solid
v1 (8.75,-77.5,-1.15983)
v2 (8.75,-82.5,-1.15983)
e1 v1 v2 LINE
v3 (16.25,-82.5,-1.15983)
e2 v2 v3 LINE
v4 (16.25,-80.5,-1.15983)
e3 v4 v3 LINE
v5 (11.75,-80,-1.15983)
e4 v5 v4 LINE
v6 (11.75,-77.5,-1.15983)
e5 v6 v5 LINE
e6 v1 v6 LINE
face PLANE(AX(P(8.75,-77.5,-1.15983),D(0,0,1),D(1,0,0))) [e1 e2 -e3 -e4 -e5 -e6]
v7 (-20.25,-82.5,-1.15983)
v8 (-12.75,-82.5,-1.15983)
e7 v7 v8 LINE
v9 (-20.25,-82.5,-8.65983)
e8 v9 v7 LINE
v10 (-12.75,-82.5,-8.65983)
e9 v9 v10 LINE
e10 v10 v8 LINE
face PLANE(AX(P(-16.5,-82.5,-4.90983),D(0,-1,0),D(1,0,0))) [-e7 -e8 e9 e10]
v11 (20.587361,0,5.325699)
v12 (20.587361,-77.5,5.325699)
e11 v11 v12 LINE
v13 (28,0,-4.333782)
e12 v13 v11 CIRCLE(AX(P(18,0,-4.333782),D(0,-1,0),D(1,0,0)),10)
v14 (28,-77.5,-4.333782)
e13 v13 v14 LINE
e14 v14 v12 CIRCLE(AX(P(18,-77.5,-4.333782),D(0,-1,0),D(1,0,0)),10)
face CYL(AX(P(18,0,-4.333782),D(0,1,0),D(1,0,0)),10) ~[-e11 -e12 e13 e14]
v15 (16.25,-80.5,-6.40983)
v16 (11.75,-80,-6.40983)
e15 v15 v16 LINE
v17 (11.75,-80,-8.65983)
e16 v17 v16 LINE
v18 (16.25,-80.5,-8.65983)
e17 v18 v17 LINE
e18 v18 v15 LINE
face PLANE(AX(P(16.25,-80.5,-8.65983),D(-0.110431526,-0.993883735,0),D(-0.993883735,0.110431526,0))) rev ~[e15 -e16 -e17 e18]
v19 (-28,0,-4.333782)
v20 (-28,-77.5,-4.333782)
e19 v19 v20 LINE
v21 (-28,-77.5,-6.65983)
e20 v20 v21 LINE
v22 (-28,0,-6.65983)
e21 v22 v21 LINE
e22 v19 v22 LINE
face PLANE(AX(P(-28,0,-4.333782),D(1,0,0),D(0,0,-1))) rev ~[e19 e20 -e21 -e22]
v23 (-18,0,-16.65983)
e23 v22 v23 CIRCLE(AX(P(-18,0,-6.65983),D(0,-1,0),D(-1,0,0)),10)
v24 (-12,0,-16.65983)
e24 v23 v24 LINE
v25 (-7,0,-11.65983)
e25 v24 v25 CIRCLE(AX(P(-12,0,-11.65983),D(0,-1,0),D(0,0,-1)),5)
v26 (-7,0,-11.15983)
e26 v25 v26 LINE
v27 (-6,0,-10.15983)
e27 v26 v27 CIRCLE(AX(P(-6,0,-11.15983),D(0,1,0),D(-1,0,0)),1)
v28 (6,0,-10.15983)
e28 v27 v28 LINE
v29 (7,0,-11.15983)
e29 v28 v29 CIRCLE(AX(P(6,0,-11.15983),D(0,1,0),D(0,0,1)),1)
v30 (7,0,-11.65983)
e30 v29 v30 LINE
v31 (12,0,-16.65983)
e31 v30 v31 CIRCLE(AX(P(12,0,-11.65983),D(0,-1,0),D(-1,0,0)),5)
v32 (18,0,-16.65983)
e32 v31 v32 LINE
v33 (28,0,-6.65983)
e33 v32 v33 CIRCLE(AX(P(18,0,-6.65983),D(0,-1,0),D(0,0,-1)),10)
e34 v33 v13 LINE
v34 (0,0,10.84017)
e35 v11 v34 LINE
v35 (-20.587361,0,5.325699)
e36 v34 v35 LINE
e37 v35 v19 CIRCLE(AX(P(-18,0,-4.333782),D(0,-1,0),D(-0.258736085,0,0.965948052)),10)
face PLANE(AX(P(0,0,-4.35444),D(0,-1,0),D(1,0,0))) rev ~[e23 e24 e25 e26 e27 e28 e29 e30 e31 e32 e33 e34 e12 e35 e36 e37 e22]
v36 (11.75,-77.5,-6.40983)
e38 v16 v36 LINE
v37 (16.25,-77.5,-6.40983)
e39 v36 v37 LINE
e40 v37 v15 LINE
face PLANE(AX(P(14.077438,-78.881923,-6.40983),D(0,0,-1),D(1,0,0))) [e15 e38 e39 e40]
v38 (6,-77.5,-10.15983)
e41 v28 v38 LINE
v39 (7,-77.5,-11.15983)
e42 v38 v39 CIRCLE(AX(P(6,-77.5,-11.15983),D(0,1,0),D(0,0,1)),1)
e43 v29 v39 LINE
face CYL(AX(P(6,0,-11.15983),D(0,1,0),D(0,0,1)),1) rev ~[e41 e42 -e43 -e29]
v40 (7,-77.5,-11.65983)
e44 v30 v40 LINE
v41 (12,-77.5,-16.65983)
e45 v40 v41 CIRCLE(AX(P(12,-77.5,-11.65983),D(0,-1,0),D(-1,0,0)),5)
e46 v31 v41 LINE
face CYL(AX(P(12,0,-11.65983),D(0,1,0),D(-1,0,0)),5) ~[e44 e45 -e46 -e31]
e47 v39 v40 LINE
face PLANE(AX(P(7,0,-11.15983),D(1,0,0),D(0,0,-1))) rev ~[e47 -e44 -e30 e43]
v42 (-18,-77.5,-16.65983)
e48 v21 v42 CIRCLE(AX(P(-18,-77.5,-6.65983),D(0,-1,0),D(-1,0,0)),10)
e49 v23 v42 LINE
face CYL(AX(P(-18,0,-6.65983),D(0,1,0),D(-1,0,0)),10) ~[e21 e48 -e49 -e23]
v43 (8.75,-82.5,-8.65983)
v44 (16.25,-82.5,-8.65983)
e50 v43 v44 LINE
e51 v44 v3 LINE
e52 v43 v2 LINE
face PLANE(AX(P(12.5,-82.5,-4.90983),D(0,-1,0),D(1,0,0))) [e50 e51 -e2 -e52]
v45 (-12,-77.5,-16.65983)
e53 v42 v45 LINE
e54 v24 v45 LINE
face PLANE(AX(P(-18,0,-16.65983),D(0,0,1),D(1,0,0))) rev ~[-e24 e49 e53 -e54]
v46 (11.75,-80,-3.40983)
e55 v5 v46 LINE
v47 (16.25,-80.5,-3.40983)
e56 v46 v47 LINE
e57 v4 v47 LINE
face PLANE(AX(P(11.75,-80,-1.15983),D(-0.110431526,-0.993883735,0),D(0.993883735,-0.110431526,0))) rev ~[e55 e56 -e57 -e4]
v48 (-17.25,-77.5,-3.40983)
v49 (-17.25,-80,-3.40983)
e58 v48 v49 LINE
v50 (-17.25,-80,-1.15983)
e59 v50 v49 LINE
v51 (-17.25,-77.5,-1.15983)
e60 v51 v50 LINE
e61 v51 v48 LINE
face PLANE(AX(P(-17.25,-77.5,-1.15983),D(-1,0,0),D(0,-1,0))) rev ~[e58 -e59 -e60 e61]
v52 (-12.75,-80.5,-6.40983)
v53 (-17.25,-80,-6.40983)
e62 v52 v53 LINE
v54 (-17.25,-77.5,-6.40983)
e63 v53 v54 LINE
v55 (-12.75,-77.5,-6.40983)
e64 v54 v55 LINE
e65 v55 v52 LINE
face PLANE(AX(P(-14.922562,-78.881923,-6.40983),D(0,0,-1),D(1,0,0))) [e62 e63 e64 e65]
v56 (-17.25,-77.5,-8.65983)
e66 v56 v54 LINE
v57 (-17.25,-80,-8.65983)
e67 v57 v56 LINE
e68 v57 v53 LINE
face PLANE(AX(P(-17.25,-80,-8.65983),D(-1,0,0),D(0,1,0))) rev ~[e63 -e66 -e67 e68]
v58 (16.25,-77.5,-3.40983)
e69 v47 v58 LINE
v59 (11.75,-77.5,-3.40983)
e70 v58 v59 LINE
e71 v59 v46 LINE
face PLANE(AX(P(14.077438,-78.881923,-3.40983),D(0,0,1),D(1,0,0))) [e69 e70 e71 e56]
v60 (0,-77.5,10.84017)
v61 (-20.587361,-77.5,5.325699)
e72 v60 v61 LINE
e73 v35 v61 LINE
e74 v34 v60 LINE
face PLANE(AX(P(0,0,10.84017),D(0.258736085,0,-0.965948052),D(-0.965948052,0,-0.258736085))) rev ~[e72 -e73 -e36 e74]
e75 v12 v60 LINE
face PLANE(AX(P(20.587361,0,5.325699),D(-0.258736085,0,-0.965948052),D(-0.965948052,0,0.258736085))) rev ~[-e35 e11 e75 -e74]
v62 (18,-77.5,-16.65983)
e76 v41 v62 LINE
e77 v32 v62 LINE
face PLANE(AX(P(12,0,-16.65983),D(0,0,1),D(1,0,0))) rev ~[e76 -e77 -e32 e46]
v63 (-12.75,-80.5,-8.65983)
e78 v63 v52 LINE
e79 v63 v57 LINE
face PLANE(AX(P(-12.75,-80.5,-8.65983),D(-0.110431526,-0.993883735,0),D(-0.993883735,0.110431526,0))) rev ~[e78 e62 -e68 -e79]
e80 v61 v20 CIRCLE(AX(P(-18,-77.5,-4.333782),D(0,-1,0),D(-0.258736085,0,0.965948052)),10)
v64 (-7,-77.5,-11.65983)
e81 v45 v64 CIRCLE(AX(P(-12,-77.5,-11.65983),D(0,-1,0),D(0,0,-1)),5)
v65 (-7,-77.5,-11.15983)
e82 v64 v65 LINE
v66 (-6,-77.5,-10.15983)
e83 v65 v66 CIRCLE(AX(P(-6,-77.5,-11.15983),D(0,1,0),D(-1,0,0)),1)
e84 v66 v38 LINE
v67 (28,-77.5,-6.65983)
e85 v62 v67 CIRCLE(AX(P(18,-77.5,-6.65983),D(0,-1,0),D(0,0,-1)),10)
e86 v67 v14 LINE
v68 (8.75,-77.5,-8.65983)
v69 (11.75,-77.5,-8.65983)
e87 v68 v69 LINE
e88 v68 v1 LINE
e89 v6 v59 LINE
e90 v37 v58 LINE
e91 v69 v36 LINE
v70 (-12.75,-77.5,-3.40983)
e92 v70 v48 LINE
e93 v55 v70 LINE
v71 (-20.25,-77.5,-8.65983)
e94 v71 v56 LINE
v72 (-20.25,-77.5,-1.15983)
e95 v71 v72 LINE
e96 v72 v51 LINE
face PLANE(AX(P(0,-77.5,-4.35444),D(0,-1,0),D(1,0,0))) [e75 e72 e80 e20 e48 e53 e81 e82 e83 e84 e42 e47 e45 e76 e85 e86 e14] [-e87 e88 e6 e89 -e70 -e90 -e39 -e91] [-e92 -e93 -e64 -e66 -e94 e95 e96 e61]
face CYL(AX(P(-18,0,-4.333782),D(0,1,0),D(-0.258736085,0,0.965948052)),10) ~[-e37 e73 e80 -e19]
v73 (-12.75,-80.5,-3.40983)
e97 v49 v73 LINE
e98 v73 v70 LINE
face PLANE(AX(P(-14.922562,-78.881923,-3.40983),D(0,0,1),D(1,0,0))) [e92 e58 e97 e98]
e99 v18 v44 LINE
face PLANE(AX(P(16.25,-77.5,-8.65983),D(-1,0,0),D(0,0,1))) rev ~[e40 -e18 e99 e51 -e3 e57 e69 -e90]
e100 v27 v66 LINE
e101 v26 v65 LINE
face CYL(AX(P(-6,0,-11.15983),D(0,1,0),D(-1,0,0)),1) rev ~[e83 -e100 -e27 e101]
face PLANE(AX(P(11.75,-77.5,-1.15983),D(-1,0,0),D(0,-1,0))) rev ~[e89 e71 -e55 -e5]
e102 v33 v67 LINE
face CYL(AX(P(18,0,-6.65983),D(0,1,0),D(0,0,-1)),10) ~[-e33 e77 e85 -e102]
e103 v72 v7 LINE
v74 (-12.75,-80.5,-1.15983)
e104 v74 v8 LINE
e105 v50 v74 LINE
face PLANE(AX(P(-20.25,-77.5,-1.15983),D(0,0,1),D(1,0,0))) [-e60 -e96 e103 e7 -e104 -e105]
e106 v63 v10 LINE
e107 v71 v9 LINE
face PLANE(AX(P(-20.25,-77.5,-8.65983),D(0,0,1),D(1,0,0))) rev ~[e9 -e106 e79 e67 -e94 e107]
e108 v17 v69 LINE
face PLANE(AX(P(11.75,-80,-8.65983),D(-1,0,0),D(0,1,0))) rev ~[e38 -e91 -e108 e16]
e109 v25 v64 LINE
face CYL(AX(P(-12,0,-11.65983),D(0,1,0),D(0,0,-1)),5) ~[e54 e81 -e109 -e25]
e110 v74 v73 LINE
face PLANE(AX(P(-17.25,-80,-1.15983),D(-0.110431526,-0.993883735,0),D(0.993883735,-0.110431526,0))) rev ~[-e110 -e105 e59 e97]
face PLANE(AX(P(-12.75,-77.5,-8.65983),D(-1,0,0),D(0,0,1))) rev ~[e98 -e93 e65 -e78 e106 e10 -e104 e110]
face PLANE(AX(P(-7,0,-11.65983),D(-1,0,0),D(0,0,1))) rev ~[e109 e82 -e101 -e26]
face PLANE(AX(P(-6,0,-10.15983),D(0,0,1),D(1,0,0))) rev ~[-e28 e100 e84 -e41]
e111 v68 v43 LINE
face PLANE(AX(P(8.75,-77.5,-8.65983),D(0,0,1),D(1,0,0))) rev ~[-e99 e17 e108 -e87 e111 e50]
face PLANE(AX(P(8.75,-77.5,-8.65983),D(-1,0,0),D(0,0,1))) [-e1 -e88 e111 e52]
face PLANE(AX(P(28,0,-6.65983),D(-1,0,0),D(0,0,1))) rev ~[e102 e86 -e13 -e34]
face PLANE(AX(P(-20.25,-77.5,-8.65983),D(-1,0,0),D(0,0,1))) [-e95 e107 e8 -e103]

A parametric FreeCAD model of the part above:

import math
import FreeCAD as App
import Part
import Sketcher
Q = App.Units.Quantity


def add_polygon(sketch, points):
    """Adds a closed chain of lines whose ends are joined by coincident constraints."""
    first, n = sketch.GeometryCount, len(points)
    for a, b in zip(points, points[1:] + points[:1]):
        sketch.addGeometry(Part.LineSegment(App.Vector(*a, 0), App.Vector(*b, 0)), False)
    for i in range(n):
        sketch.addConstraint(Sketcher.Constraint("Coincident", first + i, 2, first + (i + 1) % n, 1))

doc = App.newDocument("Part")
body = doc.addObject("PartDesign::Body", "Body")

# Sketch on XZ plane
sketch1 = body.newObject("Sketcher::SketchObject", "Sketch")
sketch1.AttachmentSupport = (doc.getObject("XZ_Plane"), [""])
sketch1.MapMode = "FlatFace"
sketch1.addGeometry([
    Part.ArcOfCircle(Part.Circle(App.Vector(-18, -6.7, 0), App.Vector(0, 0, 1), 10), math.radians(180), math.radians(270)),  # 0
    Part.LineSegment(App.Vector(-18, -16.7, 0), App.Vector(-12, -16.7, 0)),  # 1
    Part.ArcOfCircle(Part.Circle(App.Vector(-12, -11.7, 0), App.Vector(0, 0, 1), 5), math.radians(-90), math.radians(0)),  # 2
    Part.LineSegment(App.Vector(-7, -11.7, 0), App.Vector(-7, -11.2, 0)),  # 3
    Part.ArcOfCircle(Part.Circle(App.Vector(-6, -11.2, 0), App.Vector(0, 0, 1), 1), math.radians(90), math.radians(180)),  # 4
    Part.LineSegment(App.Vector(-6, -10.2, 0), App.Vector(6, -10.2, 0)),  # 5
    Part.ArcOfCircle(Part.Circle(App.Vector(6, -11.2, 0), App.Vector(0, 0, 1), 1), math.radians(0), math.radians(90)),  # 6
    Part.LineSegment(App.Vector(7, -11.2, 0), App.Vector(7, -11.7, 0)),  # 7
    Part.ArcOfCircle(Part.Circle(App.Vector(12, -11.7, 0), App.Vector(0, 0, 1), 5), math.radians(-180), math.radians(-90)),  # 8
    Part.LineSegment(App.Vector(12, -16.7, 0), App.Vector(18, -16.7, 0)),  # 9
    Part.ArcOfCircle(Part.Circle(App.Vector(18, -6.7, 0), App.Vector(0, 0, 1), 10), math.radians(-90), math.radians(0)),  # 10
    Part.LineSegment(App.Vector(28, -6.7, 0), App.Vector(28, -4.3, 0)),  # 11
    Part.ArcOfCircle(Part.Circle(App.Vector(18, -4.3, 0), App.Vector(0, 0, 1), 10), math.radians(0), math.radians(75)),  # 12
    Part.LineSegment(App.Vector(20.6, 5.3, 0), App.Vector(0, 10.8, 0)),  # 13
    Part.LineSegment(App.Vector(0, 10.8, 0), App.Vector(-20.6, 5.3, 0)),  # 14
    Part.ArcOfCircle(Part.Circle(App.Vector(-18, -4.3, 0), App.Vector(0, 0, 1), 10), math.radians(105), math.radians(180)),  # 15
    Part.LineSegment(App.Vector(-28, -4.3, 0), App.Vector(-28, -6.7, 0)),  # 16
], False)
sketch1.addConstraint([
    Sketcher.Constraint("Tangent", 0, 2, 1, 1),
    Sketcher.Constraint("Tangent", 1, 2, 2, 1),
    Sketcher.Constraint("Tangent", 2, 2, 3, 1),
    Sketcher.Constraint("Tangent", 3, 2, 4, 2),
    Sketcher.Constraint("Tangent", 4, 1, 5, 1),
    Sketcher.Constraint("Tangent", 5, 2, 6, 2),
    Sketcher.Constraint("Tangent", 6, 1, 7, 1),
    Sketcher.Constraint("Tangent", 7, 2, 8, 1),
    Sketcher.Constraint("Tangent", 8, 2, 9, 1),
    Sketcher.Constraint("Tangent", 9, 2, 10, 1),
    Sketcher.Constraint("Tangent", 10, 2, 11, 1),
    Sketcher.Constraint("Tangent", 11, 2, 12, 1),
    Sketcher.Constraint("Tangent", 12, 2, 13, 1),
    Sketcher.Constraint("Coincident", 13, 2, 14, 1),
    Sketcher.Constraint("Tangent", 14, 2, 15, 1),
    Sketcher.Constraint("Tangent", 15, 2, 16, 1),
    Sketcher.Constraint("Tangent", 16, 2, 0, 1),
    Sketcher.Constraint("Horizontal", 1),
    Sketcher.Constraint("Vertical", 3),
    Sketcher.Constraint("Horizontal", 5),
    Sketcher.Constraint("Vertical", 7),
    Sketcher.Constraint("Horizontal", 9),
    Sketcher.Constraint("Vertical", 11),
    Sketcher.Constraint("Vertical", 16),
    Sketcher.Constraint("Equal", 4, 6),
    Sketcher.Constraint("Equal", 2, 8),
    Sketcher.Constraint("Equal", 0, 10),
    Sketcher.Constraint("Equal", 10, 12),
    Sketcher.Constraint("Equal", 12, 15),
    Sketcher.Constraint("Symmetric", 2, 3, 8, 3, -2),
    Sketcher.Constraint("Symmetric", 12, 3, 15, 3, -2),
    Sketcher.Constraint("PointOnObject", 13, 2, -2),
    Sketcher.Constraint("Radius", 0, Q("10 mm")),
    Sketcher.Constraint("Radius", 2, Q("5 mm")),
    Sketcher.Constraint("Radius", 4, Q("1 mm")),
    Sketcher.Constraint("DistanceX", 1, 1, 1, 2, Q("6 mm")),
    Sketcher.Constraint("DistanceX", 5, 1, 5, 2, Q("12 mm")),
    Sketcher.Constraint("DistanceY", 3, 1, 3, 2, Q("0.5 mm")),
    Sketcher.Constraint("DistanceY", 4, 1, 13, 2, Q("21 mm")),
    Sketcher.Constraint("DistanceY", -1, 1, 12, 2, Q("5.325699 mm")),
    Sketcher.Constraint("DistanceY", 11, 1, 11, 2, Q("2.326048 mm")),
])
pad1 = body.newObject("PartDesign::Pad", "Pad")
pad1.Profile = sketch1
pad1.Length = 77.5

# Sketch on XZ plane
sketch2 = body.newObject("Sketcher::SketchObject", "Sketch001")
sketch2.AttachmentSupport = (doc.getObject("XZ_Plane"), [""])
sketch2.MapMode = "FlatFace"
sketch2.AttachmentOffset = App.Placement(App.Vector(0, 0, 77.5), App.Rotation())
add_polygon(sketch2, [(-20, -1), (-20, -9), (-13, -9), (-13, -1)])  # lines 0-3
add_polygon(sketch2, [(9, -1), (9, -9), (16, -9), (16, -1)])  # lines 4-7
sketch2.addConstraint([
    Sketcher.Constraint("Vertical", 0),
    Sketcher.Constraint("Horizontal", 1),
    Sketcher.Constraint("Vertical", 2),
    Sketcher.Constraint("Horizontal", 3),
    Sketcher.Constraint("Vertical", 4),
    Sketcher.Constraint("Horizontal", 5),
    Sketcher.Constraint("Vertical", 6),
    Sketcher.Constraint("Horizontal", 7),
    Sketcher.Constraint("Horizontal", 1, 2, 4, 2),
    Sketcher.Constraint("Horizontal", 3, 2, 6, 2),
    Sketcher.Constraint("Equal", 3, 5),
    Sketcher.Constraint("Equal", 7, 0),
    Sketcher.Constraint("DistanceX", 1, 1, 1, 2, Q("7.5 mm")),
    Sketcher.Constraint("DistanceX", 0, 2, 4, 2, Q("29 mm")),
    Sketcher.Constraint("DistanceX", 0, 2, -1, 1, Q("20.25 mm")),
    Sketcher.Constraint("DistanceY", 0, 2, -1, 1, Q("8.65983 mm")),
])
pad2 = body.newObject("PartDesign::Pad", "Pad001")
pad2.Profile = sketch2
pad2.Length = 5

# Sketch on XY plane
sketch3 = body.newObject("Sketcher::SketchObject", "Sketch002")
sketch3.AttachmentSupport = (doc.getObject("XY_Plane"), [""])
sketch3.MapMode = "FlatFace"
sketch3.AttachmentOffset = App.Placement(App.Vector(0, 0, -1.15983), App.Rotation())
add_polygon(sketch3, [(-12.8, -77.5), (-17.2, -77.5), (-17.2, -80), (-12.8, -80.5)])  # lines 0-3
sketch3.addConstraint([
    Sketcher.Constraint("Horizontal", 0),
    Sketcher.Constraint("Vertical", 1),
    Sketcher.Constraint("Vertical", 3),
    Sketcher.Constraint("DistanceY", 3, 1, 3, 2, Q("3 mm")),
    Sketcher.Constraint("DistanceX", 0, 2, 0, 1, Q("4.5 mm")),
    Sketcher.Constraint("DistanceY", 1, 2, 1, 1, Q("2.5 mm")),
    Sketcher.Constraint("DistanceY", 1, 2, -1, 1, Q("80 mm")),
    Sketcher.Constraint("DistanceX", 0, 2, -1, 1, Q("17.25 mm")),
])
pocket1 = body.newObject("PartDesign::Pocket", "Pocket")
pocket1.Profile = sketch3
pocket1.Length = 2.25

# Sketch on XY plane
sketch4 = body.newObject("Sketcher::SketchObject", "Sketch003")
sketch4.AttachmentSupport = (doc.getObject("XY_Plane"), [""])
sketch4.MapMode = "FlatFace"
sketch4.AttachmentOffset = App.Placement(App.Vector(0, 0, -1.15983), App.Rotation())
add_polygon(sketch4, [(16.2, -77.5), (11.8, -77.5), (11.8, -80), (16.2, -80.5)])  # lines 0-3
sketch4.addConstraint([
    Sketcher.Constraint("Horizontal", 0),
    Sketcher.Constraint("Vertical", 1),
    Sketcher.Constraint("Vertical", 3),
    Sketcher.Constraint("DistanceY", 3, 1, 3, 2, Q("3 mm")),
    Sketcher.Constraint("DistanceX", 0, 2, 0, 1, Q("4.5 mm")),
    Sketcher.Constraint("DistanceY", 1, 2, 1, 1, Q("2.5 mm")),
    Sketcher.Constraint("DistanceY", 1, 2, -1, 1, Q("80 mm")),
    Sketcher.Constraint("DistanceX", -1, 1, 0, 2, Q("11.75 mm")),
])
pocket2 = body.newObject("PartDesign::Pocket", "Pocket001")
pocket2.Profile = sketch4
pocket2.Length = 2.25

# Sketch on XY plane
sketch5 = body.newObject("Sketcher::SketchObject", "Sketch004")
sketch5.AttachmentSupport = (doc.getObject("XY_Plane"), [""])
sketch5.MapMode = "FlatFace"
sketch5.AttachmentOffset = App.Placement(App.Vector(0, 0, -8.65983), App.Rotation())
add_polygon(sketch5, [(11.8, -80), (11.8, -77.5), (16.2, -77.5), (16.2, -80.5)])  # lines 0-3
sketch5.addConstraint([
    Sketcher.Constraint("Vertical", 0),
    Sketcher.Constraint("Horizontal", 1),
    Sketcher.Constraint("Vertical", 2),
    Sketcher.Constraint("DistanceY", 2, 2, 2, 1, Q("3 mm")),
    Sketcher.Constraint("DistanceX", 1, 1, 1, 2, Q("4.5 mm")),
    Sketcher.Constraint("DistanceY", 0, 1, 0, 2, Q("2.5 mm")),
    Sketcher.Constraint("DistanceY", 3, 2, -1, 1, Q("80 mm")),
    Sketcher.Constraint("DistanceX", -1, 1, 0, 2, Q("11.75 mm")),
])
pocket3 = body.newObject("PartDesign::Pocket", "Pocket002")
pocket3.Profile = sketch5
pocket3.Length = 2.25
pocket3.Reversed = True

# Sketch on XY plane
sketch6 = body.newObject("Sketcher::SketchObject", "Sketch005")
sketch6.AttachmentSupport = (doc.getObject("XY_Plane"), [""])
sketch6.MapMode = "FlatFace"
sketch6.AttachmentOffset = App.Placement(App.Vector(0, 0, -8.65983), App.Rotation())
add_polygon(sketch6, [(-17.2, -80), (-17.2, -77.5), (-12.8, -77.5), (-12.8, -80.5)])  # lines 0-3
sketch6.addConstraint([
    Sketcher.Constraint("Vertical", 0),
    Sketcher.Constraint("Horizontal", 1),
    Sketcher.Constraint("Vertical", 2),
    Sketcher.Constraint("DistanceY", 2, 2, 2, 1, Q("3 mm")),
    Sketcher.Constraint("DistanceX", 1, 1, 1, 2, Q("4.5 mm")),
    Sketcher.Constraint("DistanceY", 0, 1, 0, 2, Q("2.5 mm")),
    Sketcher.Constraint("DistanceY", 3, 2, -1, 1, Q("80 mm")),
    Sketcher.Constraint("DistanceX", 0, 2, -1, 1, Q("17.25 mm")),
])
pocket4 = body.newObject("PartDesign::Pocket", "Pocket003")
pocket4.Profile = sketch6
pocket4.Length = 2.25
pocket4.Reversed = True

doc.recompute()
